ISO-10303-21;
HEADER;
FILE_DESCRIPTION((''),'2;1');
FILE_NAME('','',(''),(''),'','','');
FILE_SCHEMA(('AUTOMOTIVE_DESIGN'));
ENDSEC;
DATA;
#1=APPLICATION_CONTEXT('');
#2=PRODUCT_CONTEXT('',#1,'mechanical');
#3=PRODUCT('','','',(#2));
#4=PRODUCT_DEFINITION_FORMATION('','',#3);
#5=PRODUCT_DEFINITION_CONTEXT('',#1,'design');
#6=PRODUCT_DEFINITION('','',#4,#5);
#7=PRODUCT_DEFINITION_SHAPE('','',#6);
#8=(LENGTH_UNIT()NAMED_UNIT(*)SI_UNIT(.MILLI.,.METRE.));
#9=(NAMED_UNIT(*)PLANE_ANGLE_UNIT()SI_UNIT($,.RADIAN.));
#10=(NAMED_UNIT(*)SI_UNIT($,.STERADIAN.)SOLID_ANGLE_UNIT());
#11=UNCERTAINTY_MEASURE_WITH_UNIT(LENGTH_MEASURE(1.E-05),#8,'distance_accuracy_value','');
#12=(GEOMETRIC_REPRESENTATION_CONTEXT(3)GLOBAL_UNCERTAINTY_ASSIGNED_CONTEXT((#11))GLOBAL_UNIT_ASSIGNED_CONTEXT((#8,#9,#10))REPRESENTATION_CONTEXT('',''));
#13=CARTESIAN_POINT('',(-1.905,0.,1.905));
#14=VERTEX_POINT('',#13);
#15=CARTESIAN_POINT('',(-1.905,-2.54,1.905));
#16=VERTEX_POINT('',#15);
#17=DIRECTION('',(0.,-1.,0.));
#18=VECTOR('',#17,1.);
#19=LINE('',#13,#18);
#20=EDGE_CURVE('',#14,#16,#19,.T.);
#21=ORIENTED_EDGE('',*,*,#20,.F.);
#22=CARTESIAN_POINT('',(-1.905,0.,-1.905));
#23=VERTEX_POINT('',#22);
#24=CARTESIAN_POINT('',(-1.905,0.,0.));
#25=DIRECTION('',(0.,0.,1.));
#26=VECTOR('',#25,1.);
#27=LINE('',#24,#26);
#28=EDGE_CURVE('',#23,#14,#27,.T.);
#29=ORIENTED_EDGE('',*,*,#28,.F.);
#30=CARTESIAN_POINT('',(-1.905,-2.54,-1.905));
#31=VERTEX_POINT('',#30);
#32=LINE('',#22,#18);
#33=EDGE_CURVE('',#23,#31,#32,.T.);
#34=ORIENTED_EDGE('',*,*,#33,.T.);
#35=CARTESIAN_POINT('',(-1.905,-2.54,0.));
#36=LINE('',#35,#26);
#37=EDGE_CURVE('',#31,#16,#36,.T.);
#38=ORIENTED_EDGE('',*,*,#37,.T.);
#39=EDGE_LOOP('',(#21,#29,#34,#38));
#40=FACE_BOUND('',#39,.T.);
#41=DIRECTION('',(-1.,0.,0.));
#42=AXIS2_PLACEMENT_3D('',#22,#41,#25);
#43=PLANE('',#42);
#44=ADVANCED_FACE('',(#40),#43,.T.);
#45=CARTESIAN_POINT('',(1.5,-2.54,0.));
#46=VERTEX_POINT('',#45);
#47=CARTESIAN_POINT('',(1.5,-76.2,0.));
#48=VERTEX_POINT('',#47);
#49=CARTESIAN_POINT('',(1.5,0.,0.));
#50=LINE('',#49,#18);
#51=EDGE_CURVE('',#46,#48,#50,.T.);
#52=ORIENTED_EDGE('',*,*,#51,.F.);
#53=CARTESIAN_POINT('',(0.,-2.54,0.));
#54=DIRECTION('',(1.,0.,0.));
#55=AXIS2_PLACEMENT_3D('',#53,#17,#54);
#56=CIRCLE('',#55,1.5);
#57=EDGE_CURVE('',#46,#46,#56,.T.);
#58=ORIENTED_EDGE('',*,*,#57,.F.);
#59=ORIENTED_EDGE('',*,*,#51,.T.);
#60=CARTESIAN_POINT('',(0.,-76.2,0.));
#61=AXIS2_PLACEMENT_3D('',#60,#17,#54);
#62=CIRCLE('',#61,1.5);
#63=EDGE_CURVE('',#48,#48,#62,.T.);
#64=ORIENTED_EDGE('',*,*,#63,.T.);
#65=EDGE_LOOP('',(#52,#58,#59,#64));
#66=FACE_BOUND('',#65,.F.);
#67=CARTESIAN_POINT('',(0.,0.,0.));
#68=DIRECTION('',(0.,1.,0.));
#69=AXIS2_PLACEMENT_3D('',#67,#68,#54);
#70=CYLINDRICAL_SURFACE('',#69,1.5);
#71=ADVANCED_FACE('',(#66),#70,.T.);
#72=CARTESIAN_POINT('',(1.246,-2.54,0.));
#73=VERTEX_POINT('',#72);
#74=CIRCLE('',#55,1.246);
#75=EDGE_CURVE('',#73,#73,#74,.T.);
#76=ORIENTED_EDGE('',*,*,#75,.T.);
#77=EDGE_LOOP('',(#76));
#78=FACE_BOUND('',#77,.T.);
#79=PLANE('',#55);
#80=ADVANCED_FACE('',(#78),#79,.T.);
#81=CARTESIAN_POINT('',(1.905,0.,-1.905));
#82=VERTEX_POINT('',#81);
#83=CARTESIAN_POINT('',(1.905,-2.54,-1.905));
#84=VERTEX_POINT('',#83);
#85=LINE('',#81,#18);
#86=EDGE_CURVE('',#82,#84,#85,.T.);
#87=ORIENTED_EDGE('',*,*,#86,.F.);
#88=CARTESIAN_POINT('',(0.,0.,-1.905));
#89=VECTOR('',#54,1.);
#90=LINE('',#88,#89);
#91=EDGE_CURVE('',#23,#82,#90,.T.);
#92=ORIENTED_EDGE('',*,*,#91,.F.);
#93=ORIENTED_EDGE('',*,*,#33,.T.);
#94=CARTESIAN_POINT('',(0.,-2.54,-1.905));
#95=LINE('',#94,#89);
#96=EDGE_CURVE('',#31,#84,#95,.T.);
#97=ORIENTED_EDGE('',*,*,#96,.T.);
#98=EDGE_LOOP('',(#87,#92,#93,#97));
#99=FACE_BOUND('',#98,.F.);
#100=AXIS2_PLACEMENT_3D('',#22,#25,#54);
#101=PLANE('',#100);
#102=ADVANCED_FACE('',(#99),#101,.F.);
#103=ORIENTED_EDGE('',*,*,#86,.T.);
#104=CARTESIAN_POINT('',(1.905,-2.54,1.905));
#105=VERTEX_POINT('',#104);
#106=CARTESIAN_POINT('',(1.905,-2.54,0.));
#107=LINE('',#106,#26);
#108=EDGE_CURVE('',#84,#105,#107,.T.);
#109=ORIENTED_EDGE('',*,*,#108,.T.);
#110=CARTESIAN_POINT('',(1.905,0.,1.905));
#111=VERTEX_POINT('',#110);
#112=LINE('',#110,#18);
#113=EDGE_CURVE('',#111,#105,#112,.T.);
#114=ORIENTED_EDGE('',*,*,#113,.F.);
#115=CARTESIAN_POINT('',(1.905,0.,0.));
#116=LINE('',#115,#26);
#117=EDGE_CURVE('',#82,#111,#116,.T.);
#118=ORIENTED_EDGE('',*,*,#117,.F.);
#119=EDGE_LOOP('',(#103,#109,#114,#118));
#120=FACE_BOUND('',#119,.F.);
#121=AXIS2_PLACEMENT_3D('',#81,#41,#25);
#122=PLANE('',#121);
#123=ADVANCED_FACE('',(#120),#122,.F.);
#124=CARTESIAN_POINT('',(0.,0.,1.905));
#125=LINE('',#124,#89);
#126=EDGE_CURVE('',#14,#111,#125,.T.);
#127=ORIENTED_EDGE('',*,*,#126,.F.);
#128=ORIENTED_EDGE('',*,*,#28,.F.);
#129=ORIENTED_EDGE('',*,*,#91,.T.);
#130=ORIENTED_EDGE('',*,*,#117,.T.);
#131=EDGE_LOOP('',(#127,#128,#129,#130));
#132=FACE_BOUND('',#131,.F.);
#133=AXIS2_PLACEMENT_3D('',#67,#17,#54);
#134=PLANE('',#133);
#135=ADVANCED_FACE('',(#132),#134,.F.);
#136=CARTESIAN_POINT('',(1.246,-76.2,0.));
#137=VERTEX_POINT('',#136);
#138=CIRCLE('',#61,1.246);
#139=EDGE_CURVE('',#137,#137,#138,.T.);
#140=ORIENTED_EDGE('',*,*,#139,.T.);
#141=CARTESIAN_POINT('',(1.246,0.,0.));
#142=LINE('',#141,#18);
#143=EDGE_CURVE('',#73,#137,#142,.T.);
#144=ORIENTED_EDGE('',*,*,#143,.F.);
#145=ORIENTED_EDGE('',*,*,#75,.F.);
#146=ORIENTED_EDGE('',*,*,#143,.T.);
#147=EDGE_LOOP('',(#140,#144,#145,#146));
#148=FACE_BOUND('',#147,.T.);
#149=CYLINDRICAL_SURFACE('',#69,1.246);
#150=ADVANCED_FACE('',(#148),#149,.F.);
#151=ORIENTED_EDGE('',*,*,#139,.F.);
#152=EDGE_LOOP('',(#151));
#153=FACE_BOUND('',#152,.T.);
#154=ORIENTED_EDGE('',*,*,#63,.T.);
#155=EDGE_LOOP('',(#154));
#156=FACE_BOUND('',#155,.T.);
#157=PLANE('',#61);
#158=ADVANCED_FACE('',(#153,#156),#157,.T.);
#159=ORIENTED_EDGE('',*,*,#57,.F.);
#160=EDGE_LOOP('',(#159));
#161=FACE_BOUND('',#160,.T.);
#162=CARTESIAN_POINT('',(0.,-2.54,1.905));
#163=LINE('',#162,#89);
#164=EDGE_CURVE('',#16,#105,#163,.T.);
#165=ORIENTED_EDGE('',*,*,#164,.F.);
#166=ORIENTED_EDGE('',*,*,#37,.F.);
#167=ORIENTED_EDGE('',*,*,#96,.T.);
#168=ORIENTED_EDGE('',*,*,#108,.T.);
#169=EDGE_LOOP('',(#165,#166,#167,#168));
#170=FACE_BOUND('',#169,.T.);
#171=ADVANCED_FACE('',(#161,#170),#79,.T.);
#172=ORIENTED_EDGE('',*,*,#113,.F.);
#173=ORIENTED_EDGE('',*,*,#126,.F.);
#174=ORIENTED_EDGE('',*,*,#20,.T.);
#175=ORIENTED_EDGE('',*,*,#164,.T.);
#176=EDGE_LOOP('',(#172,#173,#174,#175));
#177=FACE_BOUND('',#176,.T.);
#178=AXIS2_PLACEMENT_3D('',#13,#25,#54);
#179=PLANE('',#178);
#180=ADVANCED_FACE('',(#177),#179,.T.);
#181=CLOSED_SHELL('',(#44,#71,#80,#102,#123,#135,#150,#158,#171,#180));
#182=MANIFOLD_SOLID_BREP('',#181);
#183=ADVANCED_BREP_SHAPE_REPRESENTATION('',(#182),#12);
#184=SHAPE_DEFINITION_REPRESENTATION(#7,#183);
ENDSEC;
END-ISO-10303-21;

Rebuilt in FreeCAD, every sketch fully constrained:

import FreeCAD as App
import Part
import Sketcher
from FreeCAD import Vector
Q = App.Units.Quantity


def add_polygon(sketch, points):
    """Adds a closed chain of lines whose ends are joined by coincident constraints."""
    first, n = sketch.GeometryCount, len(points)
    for a, b in zip(points, points[1:] + points[:1]):
        sketch.addGeometry(Part.LineSegment(App.Vector(*a, 0), App.Vector(*b, 0)), False)
    for i in range(n):
        sketch.addConstraint(Sketcher.Constraint("Coincident", first + i, 2, first + (i + 1) % n, 1))

doc = App.newDocument("Part")
body = doc.addObject("PartDesign::Body", "Body")

# Sketch on XZ plane
sketch1 = body.newObject("Sketcher::SketchObject", "Sketch")
sketch1.AttachmentSupport = (doc.getObject("XZ_Plane"), [""])
sketch1.MapMode = "FlatFace"
sketch1.addGeometry([
    Part.Circle(Vector(0, 0, 0), Vector(0, 0, 1), 1.5),
    Part.Circle(Vector(0, 0, 0), Vector(0, 0, 1), 1.2),
], False)
sketch1.addConstraint([
    Sketcher.Constraint("Coincident", 0, 3, -1, 1),
    Sketcher.Constraint("Coincident", 1, 3, -1, 1),
    Sketcher.Constraint("Diameter", 0, 3.0),
    Sketcher.Constraint("Diameter", 1, 2.492),
])
pad1 = body.newObject("PartDesign::Pad", "Pad")
pad1.Profile = sketch1
pad1.Length = Q("3 in")

# Sketch on XZ plane
sketch2 = body.newObject("Sketcher::SketchObject", "Sketch001")
sketch2.AttachmentSupport = (doc.getObject("XZ_Plane"), [""])
sketch2.MapMode = "FlatFace"
add_polygon(sketch2, [(-1.9, 1.9), (-1.9, -1.9), (1.9, -1.9), (1.9, 1.9)])  # lines 0-3
sketch2.addGeometry(Part.Circle(Vector(0, 0, 0), Vector(0, 0, 1), 1.5), False)  # 4
sketch2.addGeometry(Part.Circle(Vector(0, 0, 0), Vector(0, 0, 1), 1.2), False)  # 5
sketch2.addConstraint([
    Sketcher.Constraint("Vertical", 0),
    Sketcher.Constraint("Horizontal", 1),
    Sketcher.Constraint("Vertical", 2),
    Sketcher.Constraint("Horizontal", 3),
    Sketcher.Constraint("Coincident", 4, 3, -1, 1),
    Sketcher.Constraint("Coincident", 5, 3, -1, 1),
    Sketcher.Constraint("Symmetric", 0, 2, 2, 2, -1, 1),
    Sketcher.Constraint("Equal", 3, 0),
    Sketcher.Constraint("DistanceX", 1, 1, 1, 2, Q("0.15 in")),
    Sketcher.Constraint("Diameter", 4, 3.0),
    Sketcher.Constraint("Diameter", 5, 2.492),
])
pad2 = body.newObject("PartDesign::Pad", "Pad001")
pad2.Profile = sketch2
pad2.Length = Q("0.1 in")

doc.recompute()
